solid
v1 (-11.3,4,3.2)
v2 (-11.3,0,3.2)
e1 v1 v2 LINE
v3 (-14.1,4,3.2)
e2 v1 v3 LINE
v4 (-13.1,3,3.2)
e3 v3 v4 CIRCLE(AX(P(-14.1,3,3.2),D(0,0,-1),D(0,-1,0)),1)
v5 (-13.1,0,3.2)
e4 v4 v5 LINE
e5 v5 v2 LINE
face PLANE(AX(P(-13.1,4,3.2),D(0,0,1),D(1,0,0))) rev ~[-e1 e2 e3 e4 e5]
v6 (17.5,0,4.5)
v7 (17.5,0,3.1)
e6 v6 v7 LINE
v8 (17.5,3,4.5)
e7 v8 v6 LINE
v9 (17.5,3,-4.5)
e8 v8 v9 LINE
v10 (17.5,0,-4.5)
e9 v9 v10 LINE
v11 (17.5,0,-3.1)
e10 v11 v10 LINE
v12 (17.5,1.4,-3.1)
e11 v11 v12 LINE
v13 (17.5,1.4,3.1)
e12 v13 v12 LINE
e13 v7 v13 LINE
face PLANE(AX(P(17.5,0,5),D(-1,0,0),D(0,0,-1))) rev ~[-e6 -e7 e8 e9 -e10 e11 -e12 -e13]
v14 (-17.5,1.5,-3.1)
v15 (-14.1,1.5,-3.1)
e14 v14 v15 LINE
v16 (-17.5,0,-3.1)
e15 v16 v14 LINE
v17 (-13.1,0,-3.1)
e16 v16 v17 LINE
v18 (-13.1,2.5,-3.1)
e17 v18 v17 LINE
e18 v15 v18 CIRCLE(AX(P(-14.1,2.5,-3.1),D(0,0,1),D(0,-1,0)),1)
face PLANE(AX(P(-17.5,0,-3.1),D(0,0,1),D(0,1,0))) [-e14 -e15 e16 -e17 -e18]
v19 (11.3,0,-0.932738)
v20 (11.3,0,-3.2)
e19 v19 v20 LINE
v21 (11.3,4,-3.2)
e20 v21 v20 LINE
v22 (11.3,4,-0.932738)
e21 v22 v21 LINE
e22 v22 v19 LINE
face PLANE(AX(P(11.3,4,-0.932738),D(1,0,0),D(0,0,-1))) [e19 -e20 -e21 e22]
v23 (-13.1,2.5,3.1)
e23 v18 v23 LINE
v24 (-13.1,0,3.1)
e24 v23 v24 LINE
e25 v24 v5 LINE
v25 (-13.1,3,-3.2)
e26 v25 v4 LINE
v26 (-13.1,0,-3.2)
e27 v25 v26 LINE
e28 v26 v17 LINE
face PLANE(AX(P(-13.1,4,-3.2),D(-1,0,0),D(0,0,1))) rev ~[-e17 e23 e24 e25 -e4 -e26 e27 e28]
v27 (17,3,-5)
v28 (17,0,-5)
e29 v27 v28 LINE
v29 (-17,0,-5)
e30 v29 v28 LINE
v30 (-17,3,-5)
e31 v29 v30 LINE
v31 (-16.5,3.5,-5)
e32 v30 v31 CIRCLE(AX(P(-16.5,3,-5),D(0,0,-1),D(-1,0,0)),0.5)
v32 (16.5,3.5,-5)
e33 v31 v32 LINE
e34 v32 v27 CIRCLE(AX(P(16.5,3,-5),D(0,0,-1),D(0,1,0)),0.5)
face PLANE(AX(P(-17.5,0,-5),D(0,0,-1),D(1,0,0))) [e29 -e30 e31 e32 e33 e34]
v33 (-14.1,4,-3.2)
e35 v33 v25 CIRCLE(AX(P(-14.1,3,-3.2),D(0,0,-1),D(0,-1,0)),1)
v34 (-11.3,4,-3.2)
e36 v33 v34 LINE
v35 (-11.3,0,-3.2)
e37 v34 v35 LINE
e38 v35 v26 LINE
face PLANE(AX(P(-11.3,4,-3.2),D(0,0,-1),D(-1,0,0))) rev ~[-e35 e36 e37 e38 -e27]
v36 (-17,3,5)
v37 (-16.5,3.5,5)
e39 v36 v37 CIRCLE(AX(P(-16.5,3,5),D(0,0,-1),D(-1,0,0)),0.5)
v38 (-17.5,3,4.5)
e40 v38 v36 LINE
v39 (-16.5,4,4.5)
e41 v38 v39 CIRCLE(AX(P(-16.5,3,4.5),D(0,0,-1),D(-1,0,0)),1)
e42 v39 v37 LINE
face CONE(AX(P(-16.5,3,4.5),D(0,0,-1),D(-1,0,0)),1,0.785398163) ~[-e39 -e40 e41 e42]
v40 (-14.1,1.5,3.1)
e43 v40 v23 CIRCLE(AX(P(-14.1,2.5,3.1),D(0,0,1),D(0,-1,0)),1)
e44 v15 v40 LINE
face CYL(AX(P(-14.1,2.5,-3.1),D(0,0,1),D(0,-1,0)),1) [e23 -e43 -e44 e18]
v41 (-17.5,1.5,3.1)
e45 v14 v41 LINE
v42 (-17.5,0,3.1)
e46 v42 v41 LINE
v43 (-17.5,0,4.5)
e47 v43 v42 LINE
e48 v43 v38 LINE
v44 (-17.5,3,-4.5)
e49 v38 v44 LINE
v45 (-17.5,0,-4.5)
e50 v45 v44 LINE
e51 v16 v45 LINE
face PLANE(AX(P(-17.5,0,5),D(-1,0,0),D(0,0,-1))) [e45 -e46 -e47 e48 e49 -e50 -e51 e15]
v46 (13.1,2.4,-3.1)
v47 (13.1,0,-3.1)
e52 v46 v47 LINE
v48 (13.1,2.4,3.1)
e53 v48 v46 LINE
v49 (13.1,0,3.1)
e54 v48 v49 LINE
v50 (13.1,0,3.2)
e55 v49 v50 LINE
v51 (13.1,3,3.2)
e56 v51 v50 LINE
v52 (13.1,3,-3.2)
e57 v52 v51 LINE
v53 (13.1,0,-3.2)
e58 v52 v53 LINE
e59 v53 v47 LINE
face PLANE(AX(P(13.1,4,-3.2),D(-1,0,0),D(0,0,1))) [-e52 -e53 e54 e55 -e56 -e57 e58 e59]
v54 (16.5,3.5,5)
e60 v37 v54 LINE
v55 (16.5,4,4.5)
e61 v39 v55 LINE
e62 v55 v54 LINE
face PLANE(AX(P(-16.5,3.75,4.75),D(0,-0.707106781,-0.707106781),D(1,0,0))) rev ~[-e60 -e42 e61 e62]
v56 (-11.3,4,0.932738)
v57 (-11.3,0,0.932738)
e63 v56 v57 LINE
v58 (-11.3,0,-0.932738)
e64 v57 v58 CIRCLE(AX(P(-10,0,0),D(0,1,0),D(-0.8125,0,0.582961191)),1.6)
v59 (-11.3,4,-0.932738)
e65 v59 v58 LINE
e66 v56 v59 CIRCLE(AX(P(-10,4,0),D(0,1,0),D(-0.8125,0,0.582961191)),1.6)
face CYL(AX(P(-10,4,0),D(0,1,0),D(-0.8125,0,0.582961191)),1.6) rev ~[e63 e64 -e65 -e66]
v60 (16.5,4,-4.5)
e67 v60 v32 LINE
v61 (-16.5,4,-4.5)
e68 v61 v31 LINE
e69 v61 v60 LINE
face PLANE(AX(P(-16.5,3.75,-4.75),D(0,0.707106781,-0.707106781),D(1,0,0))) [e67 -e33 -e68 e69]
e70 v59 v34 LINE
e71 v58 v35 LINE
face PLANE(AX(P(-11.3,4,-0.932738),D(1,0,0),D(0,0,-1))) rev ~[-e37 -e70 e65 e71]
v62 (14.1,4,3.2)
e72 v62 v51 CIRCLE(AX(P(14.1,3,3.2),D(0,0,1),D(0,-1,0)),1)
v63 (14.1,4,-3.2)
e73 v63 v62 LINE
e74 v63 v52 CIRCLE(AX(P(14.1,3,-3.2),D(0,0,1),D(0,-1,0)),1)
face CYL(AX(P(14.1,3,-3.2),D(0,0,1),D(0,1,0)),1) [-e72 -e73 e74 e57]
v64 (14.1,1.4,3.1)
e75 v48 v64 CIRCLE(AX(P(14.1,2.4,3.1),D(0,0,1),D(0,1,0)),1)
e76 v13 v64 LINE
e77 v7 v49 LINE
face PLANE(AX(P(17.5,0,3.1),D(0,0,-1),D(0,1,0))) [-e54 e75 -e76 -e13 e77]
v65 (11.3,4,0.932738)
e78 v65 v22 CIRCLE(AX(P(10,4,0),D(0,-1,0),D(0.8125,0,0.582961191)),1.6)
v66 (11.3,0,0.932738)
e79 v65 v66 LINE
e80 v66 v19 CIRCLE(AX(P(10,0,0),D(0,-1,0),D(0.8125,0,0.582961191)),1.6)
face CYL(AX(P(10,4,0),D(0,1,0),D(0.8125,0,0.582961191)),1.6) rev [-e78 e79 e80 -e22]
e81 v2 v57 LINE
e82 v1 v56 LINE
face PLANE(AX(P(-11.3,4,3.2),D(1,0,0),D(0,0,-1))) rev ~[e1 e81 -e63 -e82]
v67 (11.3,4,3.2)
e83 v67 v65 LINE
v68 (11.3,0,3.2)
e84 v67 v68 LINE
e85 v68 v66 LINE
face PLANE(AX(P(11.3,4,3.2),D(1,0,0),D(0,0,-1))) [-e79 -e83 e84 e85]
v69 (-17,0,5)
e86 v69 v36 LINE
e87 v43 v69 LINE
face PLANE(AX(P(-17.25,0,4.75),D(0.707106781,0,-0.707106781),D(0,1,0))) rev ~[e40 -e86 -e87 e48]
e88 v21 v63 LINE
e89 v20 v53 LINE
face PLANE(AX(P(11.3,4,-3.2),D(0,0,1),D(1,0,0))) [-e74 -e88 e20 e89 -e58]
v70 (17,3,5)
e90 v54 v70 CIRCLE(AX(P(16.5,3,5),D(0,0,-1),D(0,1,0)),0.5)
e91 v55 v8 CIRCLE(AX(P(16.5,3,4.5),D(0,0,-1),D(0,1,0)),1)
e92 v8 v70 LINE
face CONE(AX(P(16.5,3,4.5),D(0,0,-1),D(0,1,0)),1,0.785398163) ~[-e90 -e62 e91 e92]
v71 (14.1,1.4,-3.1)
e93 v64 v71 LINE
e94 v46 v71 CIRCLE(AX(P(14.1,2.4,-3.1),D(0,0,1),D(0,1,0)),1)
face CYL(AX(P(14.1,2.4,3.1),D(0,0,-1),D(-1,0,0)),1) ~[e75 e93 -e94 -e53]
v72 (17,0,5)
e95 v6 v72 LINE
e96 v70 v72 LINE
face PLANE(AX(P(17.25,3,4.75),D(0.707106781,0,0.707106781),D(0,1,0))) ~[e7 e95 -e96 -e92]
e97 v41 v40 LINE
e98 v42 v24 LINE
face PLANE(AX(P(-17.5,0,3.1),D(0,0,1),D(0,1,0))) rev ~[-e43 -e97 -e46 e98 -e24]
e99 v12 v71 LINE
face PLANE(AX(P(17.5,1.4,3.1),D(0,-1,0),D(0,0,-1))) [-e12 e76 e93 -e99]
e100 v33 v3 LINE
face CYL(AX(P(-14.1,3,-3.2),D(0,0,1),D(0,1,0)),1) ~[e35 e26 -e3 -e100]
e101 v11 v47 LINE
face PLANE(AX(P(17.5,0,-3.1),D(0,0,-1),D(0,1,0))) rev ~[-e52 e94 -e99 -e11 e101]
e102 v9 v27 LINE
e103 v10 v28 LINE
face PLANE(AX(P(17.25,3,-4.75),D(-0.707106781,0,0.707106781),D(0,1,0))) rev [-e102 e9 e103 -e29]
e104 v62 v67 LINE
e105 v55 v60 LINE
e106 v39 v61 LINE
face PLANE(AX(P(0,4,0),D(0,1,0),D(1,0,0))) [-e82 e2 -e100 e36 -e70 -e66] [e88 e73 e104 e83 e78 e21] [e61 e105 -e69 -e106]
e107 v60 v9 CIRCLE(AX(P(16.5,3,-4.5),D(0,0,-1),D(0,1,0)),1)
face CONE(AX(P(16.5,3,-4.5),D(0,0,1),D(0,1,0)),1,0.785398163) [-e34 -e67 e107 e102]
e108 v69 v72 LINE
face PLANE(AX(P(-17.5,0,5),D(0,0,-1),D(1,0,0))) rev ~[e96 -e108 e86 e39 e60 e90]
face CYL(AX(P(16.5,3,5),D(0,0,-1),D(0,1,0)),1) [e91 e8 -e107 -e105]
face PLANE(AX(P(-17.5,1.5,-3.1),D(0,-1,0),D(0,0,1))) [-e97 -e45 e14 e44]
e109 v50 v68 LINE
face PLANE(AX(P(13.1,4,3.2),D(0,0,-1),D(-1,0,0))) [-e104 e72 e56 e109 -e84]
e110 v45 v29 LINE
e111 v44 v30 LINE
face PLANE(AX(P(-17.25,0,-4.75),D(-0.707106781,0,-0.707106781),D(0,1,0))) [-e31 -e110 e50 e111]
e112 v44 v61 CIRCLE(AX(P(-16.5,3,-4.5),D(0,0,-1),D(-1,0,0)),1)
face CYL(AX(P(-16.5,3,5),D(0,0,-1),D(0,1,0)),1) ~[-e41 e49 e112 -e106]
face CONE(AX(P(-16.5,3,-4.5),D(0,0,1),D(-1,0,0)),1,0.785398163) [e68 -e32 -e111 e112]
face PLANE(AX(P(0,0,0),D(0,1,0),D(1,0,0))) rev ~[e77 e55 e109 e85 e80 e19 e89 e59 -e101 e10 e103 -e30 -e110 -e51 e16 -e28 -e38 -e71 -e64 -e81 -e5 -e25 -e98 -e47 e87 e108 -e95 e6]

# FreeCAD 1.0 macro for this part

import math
import FreeCAD as App
import Part
import Sketcher
from FreeCAD import Vector


def edges_at(feature, points):
    """Names of the edges that pass closest to the given points."""
    edges = feature.Shape.Edges
    near = lambda p: min(range(len(edges)), key=lambda i: edges[i].distToShape(Part.Vertex(*p))[0])
    return sorted({f"Edge{near(p) + 1}" for p in points})


def add_polygon(sketch, points):
    """Adds a closed chain of lines whose ends are joined by coincident constraints."""
    first, n = sketch.GeometryCount, len(points)
    for a, b in zip(points, points[1:] + points[:1]):
        sketch.addGeometry(Part.LineSegment(App.Vector(*a, 0), App.Vector(*b, 0)), False)
    for i in range(n):
        sketch.addConstraint(Sketcher.Constraint("Coincident", first + i, 2, first + (i + 1) % n, 1))

doc = App.newDocument("Part")
body = doc.addObject("PartDesign::Body", "Body")

# Sketch on XZ plane
sketch1 = body.newObject("Sketcher::SketchObject", "Sketch")
sketch1.AttachmentSupport = (doc.getObject("XZ_Plane"), [""])
sketch1.MapMode = "FlatFace"
add_polygon(sketch1, [(-17.5, -5), (-17.5, 5), (17.5, 5), (17.5, -5)])  # lines 0-3
sketch1.addConstraint(Sketcher.Constraint("Vertical", 0))
sketch1.addConstraint(Sketcher.Constraint("Horizontal", 1))
sketch1.addConstraint(Sketcher.Constraint("Vertical", 2))
sketch1.addConstraint(Sketcher.Constraint("Horizontal", 3))
sketch1.addConstraint(Sketcher.Constraint("Symmetric", 0, 2, 2, 2, -1, 1))
sketch1.addConstraint(Sketcher.Constraint("DistanceX", 1, 1, 1, 2, 35.0))
sketch1.addConstraint(Sketcher.Constraint("DistanceY", 0, 1, 0, 2, 10.0))
pad1 = body.newObject("PartDesign::Pad", "Pad")
pad1.Profile = sketch1
pad1.Length = 4
pad1.Reversed = True

# Sketch on XZ plane
sketch2 = body.newObject("Sketcher::SketchObject", "Sketch001")
sketch2.AttachmentSupport = (doc.getObject("XZ_Plane"), [""])
sketch2.MapMode = "FlatFace"
sketch2.AttachmentOffset = App.Placement(Vector(0, 0, -4), App.Rotation())
sketch2.addGeometry(Part.LineSegment(Vector(-11.3, -0.932738, 0), Vector(-11.3, -3.2, 0)), False)
sketch2.addGeometry(Part.LineSegment(Vector(-11.3, -3.2, 0), Vector(-13.1, -3.2, 0)), False)
sketch2.addGeometry(Part.LineSegment(Vector(-13.1, -3.2, 0), Vector(-13.1, 3.2, 0)), False)
sketch2.addGeometry(Part.LineSegment(Vector(-13.1, 3.2, 0), Vector(-11.3, 3.2, 0)), False)
sketch2.addGeometry(Part.LineSegment(Vector(-11.3, 3.2, 0), Vector(-11.3, 0.932738, 0)), False)
sketch2.addGeometry(Part.ArcOfCircle(Part.Circle(Vector(-10, 0, 0), Vector(0, 0, 1), 1.6), math.radians(-144.340912), math.radians(144.340912)), False)
sketch2.addGeometry(Part.LineSegment(Vector(11.3, 0.932738, 0), Vector(11.3, 3.2, 0)), False)
sketch2.addGeometry(Part.LineSegment(Vector(11.3, 3.2, 0), Vector(13.1, 3.2, 0)), False)
sketch2.addGeometry(Part.LineSegment(Vector(13.1, 3.2, 0), Vector(13.1, -3.2, 0)), False)
sketch2.addGeometry(Part.LineSegment(Vector(13.1, -3.2, 0), Vector(11.3, -3.2, 0)), False)
sketch2.addGeometry(Part.LineSegment(Vector(11.3, -3.2, 0), Vector(11.3, -0.932738, 0)), False)
sketch2.addGeometry(Part.ArcOfCircle(Part.Circle(Vector(10, 0, 0), Vector(0, 0, 1), 1.6), math.radians(35.659088), math.radians(324.340912)), False)
sketch2.addConstraint(Sketcher.Constraint("Coincident", 0, 2, 1, 1))
sketch2.addConstraint(Sketcher.Constraint("Coincident", 1, 2, 2, 1))
sketch2.addConstraint(Sketcher.Constraint("Coincident", 2, 2, 3, 1))
sketch2.addConstraint(Sketcher.Constraint("Coincident", 3, 2, 4, 1))
sketch2.addConstraint(Sketcher.Constraint("Coincident", 4, 2, 5, 2))
sketch2.addConstraint(Sketcher.Constraint("Coincident", 5, 1, 0, 1))
sketch2.addConstraint(Sketcher.Constraint("Coincident", 6, 2, 7, 1))
sketch2.addConstraint(Sketcher.Constraint("Coincident", 7, 2, 8, 1))
sketch2.addConstraint(Sketcher.Constraint("Coincident", 8, 2, 9, 1))
sketch2.addConstraint(Sketcher.Constraint("Coincident", 9, 2, 10, 1))
sketch2.addConstraint(Sketcher.Constraint("Coincident", 10, 2, 11, 2))
sketch2.addConstraint(Sketcher.Constraint("Coincident", 11, 1, 6, 1))
sketch2.addConstraint(Sketcher.Constraint("Vertical", 0))
sketch2.addConstraint(Sketcher.Constraint("Horizontal", 1))
sketch2.addConstraint(Sketcher.Constraint("Vertical", 2))
sketch2.addConstraint(Sketcher.Constraint("Horizontal", 3))
sketch2.addConstraint(Sketcher.Constraint("Vertical", 4))
sketch2.addConstraint(Sketcher.Constraint("Vertical", 6))
sketch2.addConstraint(Sketcher.Constraint("Horizontal", 7))
sketch2.addConstraint(Sketcher.Constraint("Vertical", 8))
sketch2.addConstraint(Sketcher.Constraint("Horizontal", 9))
sketch2.addConstraint(Sketcher.Constraint("Vertical", 10))
sketch2.addConstraint(Sketcher.Constraint("Equal", 5, 11))
sketch2.addConstraint(Sketcher.Constraint("Symmetric", 5, 3, 11, 3, -1, 1))
sketch2.addConstraint(Sketcher.Constraint("Symmetric", 0, 2, 6, 2, -1, 1))
sketch2.addConstraint(Sketcher.Constraint("Symmetric", 2, 2, 8, 2, -1, 1))
sketch2.addConstraint(Sketcher.Constraint("Symmetric", 3, 2, 6, 2, -2))
sketch2.addConstraint(Sketcher.Constraint("Symmetric", 5, 1, 10, 2, -2))
sketch2.addConstraint(Sketcher.Constraint("Radius", 5, 1.6))
sketch2.addConstraint(Sketcher.Constraint("DistanceX", 1, 2, 1, 1, 1.8))
sketch2.addConstraint(Sketcher.Constraint("DistanceY", 2, 1, 2, 2, 6.4))
sketch2.addConstraint(Sketcher.Constraint("DistanceX", 5, 3, -1, 1, 10.0))
sketch2.addConstraint(Sketcher.Constraint("DistanceX", 0, 2, -1, 1, 11.3))
pocket1 = body.newObject("PartDesign::Pocket", "Pocket")
pocket1.Profile = sketch2
pocket1.Length = 4
pocket1.Reversed = True

# Sketch on YZ plane
sketch3 = body.newObject("Sketcher::SketchObject", "Sketch002")
sketch3.AttachmentSupport = (doc.getObject("YZ_Plane"), [""])
sketch3.MapMode = "FlatFace"
sketch3.AttachmentOffset = App.Placement(Vector(0, 0, -17.5), App.Rotation())
add_polygon(sketch3, [(1.5, -3.1), (0, -3.1), (0, 3.1), (1.5, 3.1)])  # lines 0-3
sketch3.addConstraint(Sketcher.Constraint("Horizontal", 0))
sketch3.addConstraint(Sketcher.Constraint("Vertical", 1))
sketch3.addConstraint(Sketcher.Constraint("Horizontal", 2))
sketch3.addConstraint(Sketcher.Constraint("Vertical", 3))
sketch3.addConstraint(Sketcher.Constraint("Symmetric", 0, 2, 1, 2, -1, 1))
sketch3.addConstraint(Sketcher.Constraint("DistanceX", 0, 2, 0, 1, 1.5))
sketch3.addConstraint(Sketcher.Constraint("DistanceY", 1, 1, 1, 2, 6.2))
pocket2 = body.newObject("PartDesign::Pocket", "Pocket001")
pocket2.Profile = sketch3
pocket2.Length = 4.4
pocket2.Reversed = True

# Sketch on YZ plane
sketch4 = body.newObject("Sketcher::SketchObject", "Sketch003")
sketch4.AttachmentSupport = (doc.getObject("YZ_Plane"), [""])
sketch4.MapMode = "FlatFace"
sketch4.AttachmentOffset = App.Placement(Vector(0, 0, 17.5), App.Rotation())
add_polygon(sketch4, [(1.4, 3.1), (0, 3.1), (0, -3.1), (1.4, -3.1)])  # lines 0-3
sketch4.addConstraint(Sketcher.Constraint("Horizontal", 0))
sketch4.addConstraint(Sketcher.Constraint("Vertical", 1))
sketch4.addConstraint(Sketcher.Constraint("Horizontal", 2))
sketch4.addConstraint(Sketcher.Constraint("Vertical", 3))
sketch4.addConstraint(Sketcher.Constraint("Symmetric", 0, 2, 1, 2, -1, 1))
sketch4.addConstraint(Sketcher.Constraint("DistanceX", 0, 2, 0, 1, 1.4))
sketch4.addConstraint(Sketcher.Constraint("DistanceY", 1, 2, 1, 1, 6.2))
pocket3 = body.newObject("PartDesign::Pocket", "Pocket002")
pocket3.Profile = sketch4
pocket3.Length = 4.4
doc.recompute()

fillet = body.newObject("PartDesign::Fillet", "Fillet")
fillet.Base = (pocket3, edges_at(pocket3, [
    (-13.1, 4, 0),
    (13.1, 4, 0),
    (-13.1, 1.5, 0),
    (13.1, 1.4, 0),
]))
fillet.Radius = 1
doc.recompute()

fillet2 = body.newObject("PartDesign::Fillet", "Fillet001")
fillet2.Base = (fillet, edges_at(fillet, [(-17.5, 4, 0), (17.5, 4, 0)]))
fillet2.Radius = 1
doc.recompute()

chamfer = body.newObject("PartDesign::Chamfer", "Chamfer")
chamfer.Base = (fillet2, edges_at(fillet2, [
    (0, 4, -5),
    (0, 4, 5),
    (17.5, 1.5, 5),
    (-17.5, 1.5, 5),
    (17.207, 3.707, 5),
    (-17.207, 3.707, 5),
    (-17.5, 1.5, -5),
    (17.5, 1.5, -5),
    (17.207, 3.707, -5),
    (-17.207, 3.707, -5),
]))
chamfer.Size = 0.5

doc.recompute()
